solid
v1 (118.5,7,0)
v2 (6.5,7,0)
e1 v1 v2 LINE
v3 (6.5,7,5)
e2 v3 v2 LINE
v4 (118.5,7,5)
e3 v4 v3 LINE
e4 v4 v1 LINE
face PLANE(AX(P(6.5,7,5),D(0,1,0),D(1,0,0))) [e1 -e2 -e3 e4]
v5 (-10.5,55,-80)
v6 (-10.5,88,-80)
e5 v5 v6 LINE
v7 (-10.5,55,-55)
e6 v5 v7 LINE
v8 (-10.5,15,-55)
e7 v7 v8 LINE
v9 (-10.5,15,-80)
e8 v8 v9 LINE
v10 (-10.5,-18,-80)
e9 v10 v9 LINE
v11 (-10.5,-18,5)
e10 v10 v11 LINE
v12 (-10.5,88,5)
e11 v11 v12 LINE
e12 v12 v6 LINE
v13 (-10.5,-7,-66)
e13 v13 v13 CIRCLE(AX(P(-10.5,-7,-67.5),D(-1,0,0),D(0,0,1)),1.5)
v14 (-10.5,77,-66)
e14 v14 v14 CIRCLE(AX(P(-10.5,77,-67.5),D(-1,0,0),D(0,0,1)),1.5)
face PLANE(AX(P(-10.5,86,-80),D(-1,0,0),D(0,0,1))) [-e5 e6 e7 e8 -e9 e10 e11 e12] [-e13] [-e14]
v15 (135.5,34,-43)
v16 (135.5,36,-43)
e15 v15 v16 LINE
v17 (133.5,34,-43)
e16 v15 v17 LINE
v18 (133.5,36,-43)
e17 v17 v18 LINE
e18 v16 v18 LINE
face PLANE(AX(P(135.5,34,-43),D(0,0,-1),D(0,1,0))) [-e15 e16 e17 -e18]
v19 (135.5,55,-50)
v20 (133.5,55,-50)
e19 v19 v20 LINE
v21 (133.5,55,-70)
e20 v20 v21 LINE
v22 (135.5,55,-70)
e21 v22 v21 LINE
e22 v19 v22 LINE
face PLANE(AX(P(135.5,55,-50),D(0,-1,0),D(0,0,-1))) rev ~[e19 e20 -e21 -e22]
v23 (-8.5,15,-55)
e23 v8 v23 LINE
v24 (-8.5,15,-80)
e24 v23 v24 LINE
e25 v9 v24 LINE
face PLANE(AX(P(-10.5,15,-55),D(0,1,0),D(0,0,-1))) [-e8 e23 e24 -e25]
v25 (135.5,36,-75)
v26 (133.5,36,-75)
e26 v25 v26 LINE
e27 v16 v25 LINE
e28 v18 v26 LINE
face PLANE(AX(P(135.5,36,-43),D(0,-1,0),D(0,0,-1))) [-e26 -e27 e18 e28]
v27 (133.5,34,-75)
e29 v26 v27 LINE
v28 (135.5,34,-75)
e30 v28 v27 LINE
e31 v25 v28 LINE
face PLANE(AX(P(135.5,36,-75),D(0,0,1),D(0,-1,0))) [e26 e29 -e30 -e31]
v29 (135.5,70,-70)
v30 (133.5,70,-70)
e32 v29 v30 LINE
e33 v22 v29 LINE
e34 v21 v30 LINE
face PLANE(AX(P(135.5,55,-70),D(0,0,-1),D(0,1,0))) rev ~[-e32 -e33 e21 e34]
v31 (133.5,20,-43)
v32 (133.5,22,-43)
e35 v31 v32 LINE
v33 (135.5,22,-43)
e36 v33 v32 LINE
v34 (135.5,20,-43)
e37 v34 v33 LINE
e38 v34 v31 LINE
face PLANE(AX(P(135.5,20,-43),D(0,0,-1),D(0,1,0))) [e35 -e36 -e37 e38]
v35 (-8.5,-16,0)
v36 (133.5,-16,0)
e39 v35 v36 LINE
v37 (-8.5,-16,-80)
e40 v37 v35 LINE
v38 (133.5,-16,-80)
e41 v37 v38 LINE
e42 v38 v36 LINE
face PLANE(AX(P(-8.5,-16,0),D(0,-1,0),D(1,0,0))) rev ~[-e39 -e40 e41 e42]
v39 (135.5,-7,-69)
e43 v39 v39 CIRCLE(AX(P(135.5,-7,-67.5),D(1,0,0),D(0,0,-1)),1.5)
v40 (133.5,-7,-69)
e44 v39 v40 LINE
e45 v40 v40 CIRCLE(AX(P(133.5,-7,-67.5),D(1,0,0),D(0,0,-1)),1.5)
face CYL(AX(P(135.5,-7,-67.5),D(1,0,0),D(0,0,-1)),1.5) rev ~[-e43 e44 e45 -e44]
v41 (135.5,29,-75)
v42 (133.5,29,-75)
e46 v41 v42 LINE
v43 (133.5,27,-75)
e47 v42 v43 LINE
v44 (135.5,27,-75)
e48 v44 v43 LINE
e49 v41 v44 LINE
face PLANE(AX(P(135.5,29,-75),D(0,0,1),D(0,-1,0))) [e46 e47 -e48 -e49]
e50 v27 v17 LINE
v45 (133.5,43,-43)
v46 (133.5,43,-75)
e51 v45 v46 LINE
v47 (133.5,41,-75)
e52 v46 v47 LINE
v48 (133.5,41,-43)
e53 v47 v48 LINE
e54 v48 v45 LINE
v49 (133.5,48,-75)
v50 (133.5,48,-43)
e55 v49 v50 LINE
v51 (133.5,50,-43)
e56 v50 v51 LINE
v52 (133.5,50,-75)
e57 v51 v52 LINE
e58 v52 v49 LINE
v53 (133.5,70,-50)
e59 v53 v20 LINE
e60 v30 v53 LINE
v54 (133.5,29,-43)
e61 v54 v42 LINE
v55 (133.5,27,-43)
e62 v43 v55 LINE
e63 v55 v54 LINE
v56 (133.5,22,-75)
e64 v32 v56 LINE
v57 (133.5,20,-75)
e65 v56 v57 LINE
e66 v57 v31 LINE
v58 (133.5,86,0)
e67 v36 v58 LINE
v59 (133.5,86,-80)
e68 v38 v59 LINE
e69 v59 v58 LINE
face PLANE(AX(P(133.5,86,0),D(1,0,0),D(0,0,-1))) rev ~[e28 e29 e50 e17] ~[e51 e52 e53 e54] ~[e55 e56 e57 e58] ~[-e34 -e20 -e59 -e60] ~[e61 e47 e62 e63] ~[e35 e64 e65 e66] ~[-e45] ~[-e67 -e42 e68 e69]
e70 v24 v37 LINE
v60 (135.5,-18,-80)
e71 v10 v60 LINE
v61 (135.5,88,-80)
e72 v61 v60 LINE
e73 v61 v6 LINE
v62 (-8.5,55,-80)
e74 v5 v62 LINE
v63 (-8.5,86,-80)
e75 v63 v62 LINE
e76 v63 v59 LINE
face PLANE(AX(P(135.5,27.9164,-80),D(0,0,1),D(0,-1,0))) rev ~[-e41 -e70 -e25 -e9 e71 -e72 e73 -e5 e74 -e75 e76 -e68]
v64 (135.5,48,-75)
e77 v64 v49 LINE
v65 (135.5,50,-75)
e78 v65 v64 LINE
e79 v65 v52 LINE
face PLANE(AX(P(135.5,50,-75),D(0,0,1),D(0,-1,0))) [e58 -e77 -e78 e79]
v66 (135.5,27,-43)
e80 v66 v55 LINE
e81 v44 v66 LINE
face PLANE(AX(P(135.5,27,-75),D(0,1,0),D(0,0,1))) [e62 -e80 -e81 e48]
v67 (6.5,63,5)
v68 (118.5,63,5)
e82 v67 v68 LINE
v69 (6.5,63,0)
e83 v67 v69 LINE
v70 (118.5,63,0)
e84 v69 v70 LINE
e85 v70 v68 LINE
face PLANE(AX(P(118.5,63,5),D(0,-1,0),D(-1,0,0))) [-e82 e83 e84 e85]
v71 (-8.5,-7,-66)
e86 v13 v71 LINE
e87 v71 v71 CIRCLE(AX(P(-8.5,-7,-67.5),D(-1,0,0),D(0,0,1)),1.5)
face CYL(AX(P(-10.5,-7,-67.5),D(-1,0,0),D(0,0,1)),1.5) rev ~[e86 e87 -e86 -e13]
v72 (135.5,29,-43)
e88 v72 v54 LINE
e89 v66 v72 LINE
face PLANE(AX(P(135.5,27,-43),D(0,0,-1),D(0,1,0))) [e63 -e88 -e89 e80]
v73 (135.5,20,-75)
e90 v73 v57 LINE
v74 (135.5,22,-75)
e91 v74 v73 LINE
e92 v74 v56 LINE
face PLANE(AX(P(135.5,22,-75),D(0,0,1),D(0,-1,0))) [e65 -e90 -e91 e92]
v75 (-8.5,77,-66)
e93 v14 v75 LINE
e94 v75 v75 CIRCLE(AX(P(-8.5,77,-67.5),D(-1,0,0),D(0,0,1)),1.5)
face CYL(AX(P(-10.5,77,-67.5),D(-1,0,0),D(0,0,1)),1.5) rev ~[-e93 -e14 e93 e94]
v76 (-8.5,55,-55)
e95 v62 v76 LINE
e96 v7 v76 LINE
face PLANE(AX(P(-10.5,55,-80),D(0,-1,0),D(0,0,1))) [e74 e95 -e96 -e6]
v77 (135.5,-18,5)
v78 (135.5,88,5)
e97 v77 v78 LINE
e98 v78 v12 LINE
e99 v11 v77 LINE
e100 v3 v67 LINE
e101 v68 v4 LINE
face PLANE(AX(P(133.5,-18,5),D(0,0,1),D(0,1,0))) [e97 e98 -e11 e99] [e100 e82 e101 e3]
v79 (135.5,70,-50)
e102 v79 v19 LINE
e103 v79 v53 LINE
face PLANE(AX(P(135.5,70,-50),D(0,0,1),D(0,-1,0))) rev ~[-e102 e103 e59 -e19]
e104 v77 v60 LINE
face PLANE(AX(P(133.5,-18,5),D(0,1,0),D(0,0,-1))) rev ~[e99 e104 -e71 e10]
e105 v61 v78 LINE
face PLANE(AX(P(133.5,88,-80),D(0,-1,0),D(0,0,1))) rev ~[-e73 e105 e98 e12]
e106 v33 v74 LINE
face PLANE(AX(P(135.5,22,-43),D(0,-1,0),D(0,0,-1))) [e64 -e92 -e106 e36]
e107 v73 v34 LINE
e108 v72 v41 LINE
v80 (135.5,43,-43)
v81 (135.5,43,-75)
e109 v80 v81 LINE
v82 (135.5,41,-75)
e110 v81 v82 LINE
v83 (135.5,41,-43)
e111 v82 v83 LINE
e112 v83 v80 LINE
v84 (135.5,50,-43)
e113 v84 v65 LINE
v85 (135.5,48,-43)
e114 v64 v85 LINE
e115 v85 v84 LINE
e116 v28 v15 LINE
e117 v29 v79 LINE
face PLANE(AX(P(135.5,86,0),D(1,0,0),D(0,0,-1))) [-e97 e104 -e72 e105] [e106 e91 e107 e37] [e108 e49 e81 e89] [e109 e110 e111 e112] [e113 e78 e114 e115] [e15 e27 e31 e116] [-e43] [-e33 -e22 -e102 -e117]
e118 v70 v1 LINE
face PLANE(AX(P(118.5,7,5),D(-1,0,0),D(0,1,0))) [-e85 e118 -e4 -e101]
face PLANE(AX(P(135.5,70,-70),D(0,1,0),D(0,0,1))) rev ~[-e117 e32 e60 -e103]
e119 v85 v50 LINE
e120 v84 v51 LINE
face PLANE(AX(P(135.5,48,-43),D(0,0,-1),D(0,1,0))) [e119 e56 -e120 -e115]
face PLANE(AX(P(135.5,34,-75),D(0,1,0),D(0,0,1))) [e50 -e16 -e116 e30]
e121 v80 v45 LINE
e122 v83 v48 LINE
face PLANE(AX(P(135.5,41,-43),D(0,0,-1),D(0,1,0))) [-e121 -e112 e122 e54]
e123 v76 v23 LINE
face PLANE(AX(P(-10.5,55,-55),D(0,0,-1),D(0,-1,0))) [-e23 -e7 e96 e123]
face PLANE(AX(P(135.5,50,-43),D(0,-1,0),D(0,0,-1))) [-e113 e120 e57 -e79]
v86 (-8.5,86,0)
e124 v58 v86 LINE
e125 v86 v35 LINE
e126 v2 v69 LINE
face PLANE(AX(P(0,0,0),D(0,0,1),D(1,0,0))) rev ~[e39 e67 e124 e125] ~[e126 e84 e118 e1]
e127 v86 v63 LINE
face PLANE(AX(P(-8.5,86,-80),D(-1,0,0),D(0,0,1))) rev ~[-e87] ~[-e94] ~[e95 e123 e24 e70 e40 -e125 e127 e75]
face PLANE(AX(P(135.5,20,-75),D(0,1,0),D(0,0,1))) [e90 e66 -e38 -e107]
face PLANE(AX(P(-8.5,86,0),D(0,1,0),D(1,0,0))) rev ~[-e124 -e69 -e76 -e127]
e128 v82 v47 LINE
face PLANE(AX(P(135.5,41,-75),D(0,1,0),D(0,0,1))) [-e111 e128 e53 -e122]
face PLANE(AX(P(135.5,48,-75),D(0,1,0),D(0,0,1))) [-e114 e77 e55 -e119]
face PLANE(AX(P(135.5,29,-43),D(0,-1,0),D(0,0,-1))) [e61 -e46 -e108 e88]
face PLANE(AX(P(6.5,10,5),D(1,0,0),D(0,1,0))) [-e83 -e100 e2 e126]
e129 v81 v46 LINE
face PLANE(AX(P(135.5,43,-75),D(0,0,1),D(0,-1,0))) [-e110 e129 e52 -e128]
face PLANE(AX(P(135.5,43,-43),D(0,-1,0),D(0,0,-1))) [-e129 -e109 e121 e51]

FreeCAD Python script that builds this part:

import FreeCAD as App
import Part
import Sketcher
from FreeCAD import Vector


def edges_at(feature, points):
    """Names of the edges that pass closest to the given points."""
    edges = feature.Shape.Edges
    near = lambda p: min(range(len(edges)), key=lambda i: edges[i].distToShape(Part.Vertex(*p))[0])
    return sorted({f"Edge{near(p) + 1}" for p in points})

doc = App.newDocument("Part")
body = doc.addObject("PartDesign::Body", "Body")

# Sketch on XY plane
sketch1 = doc.addObject("Sketcher::SketchObject", "Sketch")
body.addObject(sketch1)
sketch1.AttachmentSupport = (doc.XY_Plane, [""])
sketch1.MapMode = "FlatFace"
sketch1.addGeometry([
    Part.LineSegment(Vector(-8.5, 86, 0), Vector(-8.5, -16, 0)),  # 0
    Part.LineSegment(Vector(-8.5, -16, 0), Vector(133.5, -16, 0)),  # 1
    Part.LineSegment(Vector(133.5, -16, 0), Vector(133.5, 86, 0)),  # 2
    Part.LineSegment(Vector(133.5, 86, 0), Vector(-8.5, 86, 0)),  # 3
    Part.Circle(Vector(0, 0, 0), Vector(0, 0, 1), 2.5),  # 4
    Part.Circle(Vector(125, 0, 0), Vector(0, 0, 1), 2.5),  # 5
    Part.Circle(Vector(0, 70, 0), Vector(0, 0, 1), 2.5),  # 6
    Part.Circle(Vector(125, 70, 0), Vector(0, 0, 1), 2.5),  # 7
], False)
sketch1.addConstraint([
    Sketcher.Constraint("Coincident", 0, 2, 1, 1),
    Sketcher.Constraint("Coincident", 1, 2, 2, 1),
    Sketcher.Constraint("Coincident", 2, 2, 3, 1),
    Sketcher.Constraint("Coincident", 3, 2, 0, 1),
    Sketcher.Constraint("Vertical", 0),
    Sketcher.Constraint("Horizontal", 1),
    Sketcher.Constraint("Vertical", 2),
    Sketcher.Constraint("Horizontal", 3),
    Sketcher.Constraint("Coincident", 4, 3, -1, 1),
    Sketcher.Constraint("Equal", 4, 5),
    Sketcher.Constraint("Equal", 5, 6),
    Sketcher.Constraint("Equal", 6, 7),
    Sketcher.Constraint("PointOnObject", 5, 3, -1),
    Sketcher.Constraint("PointOnObject", 6, 3, -2),
    Sketcher.Constraint("Horizontal", 6, 3, 7, 3),
    Sketcher.Constraint("Vertical", 5, 3, 7, 3),
    Sketcher.Constraint("Diameter", 4, 5.0),
    Sketcher.Constraint("DistanceX", 1, 1, 1, 2, 142.0),
    Sketcher.Constraint("DistanceY", 0, 2, 0, 1, 102.0),
    Sketcher.Constraint("DistanceX", -1, 1, 5, 3, 125.0),
    Sketcher.Constraint("DistanceY", -1, 1, 6, 3, 70.0),
    Sketcher.Constraint("DistanceY", 0, 2, -1, 1, 16.0),
    Sketcher.Constraint("DistanceX", 0, 2, -1, 1, 8.5),
])
pad1 = doc.addObject("PartDesign::Pad", "Pad")
body.addObject(pad1)
pad1.Profile = sketch1
pad1.Length = 5

# Sketch on XY plane
sketch2 = doc.addObject("Sketcher::SketchObject", "Sketch001")
body.addObject(sketch2)
sketch2.AttachmentSupport = (doc.XY_Plane, [""])
sketch2.MapMode = "FlatFace"
sketch2.AttachmentOffset = App.Placement(Vector(0, 0, 5), App.Rotation())
sketch2.addGeometry([
    Part.LineSegment(Vector(118, 60, 0), Vector(6, 60, 0)),
    Part.LineSegment(Vector(6, 60, 0), Vector(6, 10, 0)),
    Part.LineSegment(Vector(6, 10, 0), Vector(118, 10, 0)),
    Part.LineSegment(Vector(118, 10, 0), Vector(118, 60, 0)),
], False)
sketch2.addConstraint([
    Sketcher.Constraint("Coincident", 0, 2, 1, 1),
    Sketcher.Constraint("Coincident", 1, 2, 2, 1),
    Sketcher.Constraint("Coincident", 2, 2, 3, 1),
    Sketcher.Constraint("Coincident", 3, 2, 0, 1),
    Sketcher.Constraint("Horizontal", 0),
    Sketcher.Constraint("Vertical", 1),
    Sketcher.Constraint("Horizontal", 2),
    Sketcher.Constraint("Vertical", 3),
    Sketcher.Constraint("DistanceY", 1, 2, 1, 1, 50.0),
    Sketcher.Constraint("DistanceX", 0, 2, 0, 1, 112.0),
    Sketcher.Constraint("DistanceY", -1, 1, 0, 2, 60.0),
    Sketcher.Constraint("DistanceX", -1, 1, 0, 2, 6.5),
])
pocket1 = doc.addObject("PartDesign::Pocket", "Pocket")
body.addObject(pocket1)
pocket1.Profile = sketch2
pocket1.Type = "ThroughAll"

# Sketch on XZ plane
sketch3 = doc.addObject("Sketcher::SketchObject", "Sketch002")
body.addObject(sketch3)
sketch3.AttachmentSupport = (doc.XZ_Plane, [""])
sketch3.MapMode = "FlatFace"
sketch3.AttachmentOffset = App.Placement(Vector(0, 0, -86), App.Rotation())
sketch3.addGeometry([
    Part.LineSegment(Vector(134, 5, 0), Vector(134, -80, 0)),
    Part.LineSegment(Vector(134, -80, 0), Vector(-8, -80, 0)),
    Part.LineSegment(Vector(-8, -80, 0), Vector(-8, 5, 0)),
    Part.LineSegment(Vector(-8, 5, 0), Vector(134, 5, 0)),
], False)
sketch3.addConstraint([
    Sketcher.Constraint("Coincident", 0, 2, 1, 1),
    Sketcher.Constraint("Coincident", 1, 2, 2, 1),
    Sketcher.Constraint("Coincident", 2, 2, 3, 1),
    Sketcher.Constraint("Coincident", 3, 2, 0, 1),
    Sketcher.Constraint("Vertical", 0),
    Sketcher.Constraint("Horizontal", 1),
    Sketcher.Constraint("Vertical", 2),
    Sketcher.Constraint("Horizontal", 3),
    Sketcher.Constraint("DistanceY", 0, 2, 0, 1, 85.0),
    Sketcher.Constraint("DistanceX", 1, 2, 1, 1, 142.0),
    Sketcher.Constraint("DistanceY", 0, 2, -1, 1, 80.0),
    Sketcher.Constraint("DistanceX", -1, 1, 0, 2, 133.5),
])
pad2 = doc.addObject("PartDesign::Pad", "Pad001")
body.addObject(pad2)
pad2.Profile = sketch3
pad2.Length = 2
pad2.Reversed = True

# Sketch on XZ plane
sketch4 = doc.addObject("Sketcher::SketchObject", "Sketch003")
body.addObject(sketch4)
sketch4.AttachmentSupport = (doc.XZ_Plane, [""])
sketch4.MapMode = "FlatFace"
sketch4.AttachmentOffset = App.Placement(Vector(0, 0, 16), App.Rotation())
sketch4.addGeometry([
    Part.LineSegment(Vector(134, -80, 0), Vector(134, 5, 0)),
    Part.LineSegment(Vector(134, 5, 0), Vector(-8, 5, 0)),
    Part.LineSegment(Vector(-8, 5, 0), Vector(-8, -80, 0)),
    Part.LineSegment(Vector(-8, -80, 0), Vector(134, -80, 0)),
], False)
sketch4.addConstraint([
    Sketcher.Constraint("Coincident", 0, 2, 1, 1),
    Sketcher.Constraint("Coincident", 1, 2, 2, 1),
    Sketcher.Constraint("Coincident", 2, 2, 3, 1),
    Sketcher.Constraint("Coincident", 3, 2, 0, 1),
    Sketcher.Constraint("Vertical", 0),
    Sketcher.Constraint("Horizontal", 1),
    Sketcher.Constraint("Vertical", 2),
    Sketcher.Constraint("Horizontal", 3),
    Sketcher.Constraint("DistanceX", 1, 2, 1, 1, 142.0),
    Sketcher.Constraint("DistanceY", 0, 1, 0, 2, 85.0),
    Sketcher.Constraint("DistanceY", -1, 1, 0, 2, 5.0),
    Sketcher.Constraint("DistanceX", -1, 1, 0, 2, 133.5),
])
pad3 = doc.addObject("PartDesign::Pad", "Pad002")
body.addObject(pad3)
pad3.Profile = sketch4
pad3.Length = 2

# Sketch on YZ plane
sketch5 = doc.addObject("Sketcher::SketchObject", "Sketch004")
body.addObject(sketch5)
sketch5.AttachmentSupport = (doc.YZ_Plane, [""])
sketch5.MapMode = "FlatFace"
sketch5.AttachmentOffset = App.Placement(Vector(0, 0, -8.5), App.Rotation())
sketch5.addGeometry([
    Part.LineSegment(Vector(-18, -80, 0), Vector(-18, 5, 0)),
    Part.LineSegment(Vector(-18, 5, 0), Vector(88, 5, 0)),
    Part.LineSegment(Vector(88, 5, 0), Vector(88, -80, 0)),
    Part.LineSegment(Vector(88, -80, 0), Vector(-18, -80, 0)),
], False)
sketch5.addConstraint([
    Sketcher.Constraint("Coincident", 0, 2, 1, 1),
    Sketcher.Constraint("Coincident", 1, 2, 2, 1),
    Sketcher.Constraint("Coincident", 2, 2, 3, 1),
    Sketcher.Constraint("Coincident", 3, 2, 0, 1),
    Sketcher.Constraint("Vertical", 0),
    Sketcher.Constraint("Horizontal", 1),
    Sketcher.Constraint("Vertical", 2),
    Sketcher.Constraint("Horizontal", 3),
    Sketcher.Constraint("DistanceX", 1, 1, 1, 2, 106.0),
    Sketcher.Constraint("DistanceY", 0, 1, 0, 2, 85.0),
    Sketcher.Constraint("DistanceX", 0, 2, -1, 1, 18.0),
    Sketcher.Constraint("DistanceY", -1, 1, 0, 2, 5.0),
])
pad4 = doc.addObject("PartDesign::Pad", "Pad003")
body.addObject(pad4)
pad4.Profile = sketch5
pad4.Length = 2
pad4.Reversed = True

# Sketch on YZ plane
sketch6 = doc.addObject("Sketcher::SketchObject", "Sketch005")
body.addObject(sketch6)
sketch6.AttachmentSupport = (doc.YZ_Plane, [""])
sketch6.MapMode = "FlatFace"
sketch6.AttachmentOffset = App.Placement(Vector(0, 0, 133.5), App.Rotation())
sketch6.addGeometry([
    Part.LineSegment(Vector(88, 5, 0), Vector(-18, 5, 0)),
    Part.LineSegment(Vector(-18, 5, 0), Vector(-18, -80, 0)),
    Part.LineSegment(Vector(-18, -80, 0), Vector(88, -80, 0)),
    Part.LineSegment(Vector(88, -80, 0), Vector(88, 5, 0)),
], False)
sketch6.addConstraint([
    Sketcher.Constraint("Coincident", 0, 2, 1, 1),
    Sketcher.Constraint("Coincident", 1, 2, 2, 1),
    Sketcher.Constraint("Coincident", 2, 2, 3, 1),
    Sketcher.Constraint("Coincident", 3, 2, 0, 1),
    Sketcher.Constraint("Horizontal", 0),
    Sketcher.Constraint("Vertical", 1),
    Sketcher.Constraint("Horizontal", 2),
    Sketcher.Constraint("Vertical", 3),
    Sketcher.Constraint("DistanceX", 0, 2, 0, 1, 106.0),
    Sketcher.Constraint("DistanceY", 1, 2, 1, 1, 85.0),
    Sketcher.Constraint("DistanceX", 0, 2, -1, 1, 18.0),
    Sketcher.Constraint("DistanceY", -1, 1, 0, 2, 5.0),
])
pad5 = doc.addObject("PartDesign::Pad", "Pad004")
body.addObject(pad5)
pad5.Profile = sketch6
pad5.Length = 2

# Sketch on XY plane
sketch7 = doc.addObject("Sketcher::SketchObject", "Sketch006")
body.addObject(sketch7)
sketch7.AttachmentSupport = (doc.XY_Plane, [""])
sketch7.MapMode = "FlatFace"
sketch7.AttachmentOffset = App.Placement(Vector(0, 0, 5), App.Rotation())
sketch7.addGeometry([
    Part.LineSegment(Vector(64, 20, 0), Vector(64, 10, 0)),  # 0
    Part.LineSegment(Vector(64, 10, 0), Vector(118, 10, 0)),  # 1
    Part.LineSegment(Vector(118, 10, 0), Vector(118, 20, 0)),  # 2
    Part.LineSegment(Vector(118, 20, 0), Vector(64, 20, 0)),  # 3
    Part.LineSegment(Vector(62, 60, 0), Vector(6, 60, 0)),  # 4
    Part.LineSegment(Vector(6, 60, 0), Vector(6, 50, 0)),  # 5
    Part.LineSegment(Vector(6, 50, 0), Vector(62, 50, 0)),  # 6
    Part.LineSegment(Vector(62, 50, 0), Vector(62, 60, 0)),  # 7
], False)
sketch7.addConstraint([
    Sketcher.Constraint("Coincident", 0, 2, 1, 1),
    Sketcher.Constraint("Coincident", 1, 2, 2, 1),
    Sketcher.Constraint("Coincident", 2, 2, 3, 1),
    Sketcher.Constraint("Coincident", 3, 2, 0, 1),
    Sketcher.Constraint("Coincident", 4, 2, 5, 1),
    Sketcher.Constraint("Coincident", 5, 2, 6, 1),
    Sketcher.Constraint("Coincident", 6, 2, 7, 1),
    Sketcher.Constraint("Coincident", 7, 2, 4, 1),
    Sketcher.Constraint("Vertical", 0),
    Sketcher.Constraint("Horizontal", 1),
    Sketcher.Constraint("Vertical", 2),
    Sketcher.Constraint("Horizontal", 3),
    Sketcher.Constraint("Horizontal", 4),
    Sketcher.Constraint("Vertical", 5),
    Sketcher.Constraint("Horizontal", 6),
    Sketcher.Constraint("Vertical", 7),
    Sketcher.Constraint("Equal", 3, 4),
    Sketcher.Constraint("Equal", 2, 5),
    Sketcher.Constraint("DistanceX", 1, 1, 1, 2, 55.0),
    Sketcher.Constraint("DistanceY", 0, 2, 0, 1, 10.0),
    Sketcher.Constraint("DistanceY", -1, 1, 0, 2, 10.0),
    Sketcher.Constraint("DistanceY", -1, 1, 4, 2, 60.0),
    Sketcher.Constraint("DistanceX", 4, 2, 3, 2, 57.0),
    Sketcher.Constraint("DistanceX", -1, 1, 0, 2, 63.5),
])
pad6 = doc.addObject("PartDesign::Pad", "Pad005")
body.addObject(pad6)
pad6.Profile = sketch7
pad6.Length = 5
pad6.Reversed = True
doc.recompute()

chamfer = doc.addObject("PartDesign::Chamfer", "Chamfer")
body.addObject(chamfer)
chamfer.Base = (pad6, edges_at(pad6, [
    (35, 10, 0),
    (90, 60, 0),
    (91, 20, 5),
    (34, 50, 5),
]))
chamfer.Size = 3

# Sketch on YZ plane
sketch8 = doc.addObject("Sketcher::SketchObject", "Sketch007")
body.addObject(sketch8)
sketch8.AttachmentSupport = (doc.YZ_Plane, [""])
sketch8.MapMode = "FlatFace"
sketch8.AttachmentOffset = App.Placement(Vector(0, 0, 135.5), App.Rotation())
sketch8.addGeometry([
    Part.LineSegment(Vector(8, -55, 0), Vector(8, -80, 0)),
    Part.LineSegment(Vector(8, -80, 0), Vector(28, -80, 0)),
    Part.LineSegment(Vector(28, -80, 0), Vector(28, -55, 0)),
    Part.LineSegment(Vector(28, -55, 0), Vector(8, -55, 0)),
], False)
sketch8.addConstraint([
    Sketcher.Constraint("Coincident", 0, 2, 1, 1),
    Sketcher.Constraint("Coincident", 1, 2, 2, 1),
    Sketcher.Constraint("Coincident", 2, 2, 3, 1),
    Sketcher.Constraint("Coincident", 3, 2, 0, 1),
    Sketcher.Constraint("Vertical", 0),
    Sketcher.Constraint("Horizontal", 1),
    Sketcher.Constraint("Vertical", 2),
    Sketcher.Constraint("Horizontal", 3),
    Sketcher.Constraint("DistanceX", 1, 1, 1, 2, 20.0),
    Sketcher.Constraint("DistanceY", 0, 2, 0, 1, 25.0),
    Sketcher.Constraint("DistanceY", 0, 2, -1, 1, 80.0),
    Sketcher.Constraint("DistanceX", -1, 1, 0, 2, 7.9164),
])
pocket2 = doc.addObject("PartDesign::Pocket", "Pocket001")
body.addObject(pocket2)
pocket2.Profile = sketch8
pocket2.Length = 10

# Sketch on YZ plane
sketch9 = doc.addObject("Sketcher::SketchObject", "Sketch008")
body.addObject(sketch9)
sketch9.AttachmentSupport = (doc.YZ_Plane, [""])
sketch9.MapMode = "FlatFace"
sketch9.AttachmentOffset = App.Placement(Vector(0, 0, -10.5), App.Rotation())
sketch9.addGeometry([
    Part.LineSegment(Vector(55, -80, 0), Vector(15, -80, 0)),
    Part.LineSegment(Vector(15, -80, 0), Vector(15, -55, 0)),
    Part.LineSegment(Vector(15, -55, 0), Vector(55, -55, 0)),
    Part.LineSegment(Vector(55, -55, 0), Vector(55, -80, 0)),
], False)
sketch9.addConstraint([
    Sketcher.Constraint("Coincident", 0, 2, 1, 1),
    Sketcher.Constraint("Coincident", 1, 2, 2, 1),
    Sketcher.Constraint("Coincident", 2, 2, 3, 1),
    Sketcher.Constraint("Coincident", 3, 2, 0, 1),
    Sketcher.Constraint("Horizontal", 0),
    Sketcher.Constraint("Vertical", 1),
    Sketcher.Constraint("Horizontal", 2),
    Sketcher.Constraint("Vertical", 3),
    Sketcher.Constraint("DistanceX", 0, 2, 0, 1, 40.0),
    Sketcher.Constraint("DistanceY", 1, 1, 1, 2, 25.0),
    Sketcher.Constraint("DistanceX", -1, 1, 0, 2, 15.0),
    Sketcher.Constraint("DistanceY", 0, 2, -1, 1, 80.0),
])
pocket3 = doc.addObject("PartDesign::Pocket", "Pocket002")
body.addObject(pocket3)
pocket3.Profile = sketch9
pocket3.Length = 10
pocket3.Reversed = True

# Sketch on YZ plane
sketch10 = doc.addObject("Sketcher::SketchObject", "Sketch009")
body.addObject(sketch10)
sketch10.AttachmentSupport = (doc.YZ_Plane, [""])
sketch10.MapMode = "FlatFace"
sketch10.AttachmentOffset = App.Placement(Vector(0, 0, -10.5), App.Rotation())
sketch10.addGeometry([
    Part.Circle(Vector(-7, -67.5, 0), Vector(0, 0, 1), 1.5),
    Part.Circle(Vector(77, -67.5, 0), Vector(0, 0, 1), 1.5),
], False)
sketch10.addConstraint([
    Sketcher.Constraint("Equal", 0, 1),
    Sketcher.Constraint("Horizontal", 0, 3, 1, 3),
    Sketcher.Constraint("Diameter", 0, 3.0),
    Sketcher.Constraint("DistanceX", 0, 3, 1, 3, 84.0),
    Sketcher.Constraint("DistanceX", 0, 3, -1, 1, 7.0),
    Sketcher.Constraint("DistanceY", 0, 3, -1, 1, 67.5),
])
pocket4 = doc.addObject("PartDesign::Pocket", "Pocket003")
body.addObject(pocket4)
pocket4.Profile = sketch10
pocket4.Length = 10
pocket4.Reversed = True

# Sketch on XY plane
sketch11 = doc.addObject("Sketcher::SketchObject", "Sketch010")
body.addObject(sketch11)
sketch11.AttachmentSupport = (doc.XY_Plane, [""])
sketch11.MapMode = "FlatFace"
sketch11.AttachmentOffset = App.Placement(Vector(0, 0, 5), App.Rotation())
sketch11.addGeometry([
    Part.Circle(Vector(0, 0, 0), Vector(0, 0, 1), 2.5),
    Part.Circle(Vector(0, 70, 0), Vector(0, 0, 1), 2.5),
    Part.Circle(Vector(125, 0, 0), Vector(0, 0, 1), 2.5),
    Part.Circle(Vector(125, 70, 0), Vector(0, 0, 1), 2.5),
], False)
sketch11.addConstraint([
    Sketcher.Constraint("Coincident", 0, 3, -1, 1),
    Sketcher.Constraint("Equal", 0, 1),
    Sketcher.Constraint("Equal", 1, 2),
    Sketcher.Constraint("Equal", 2, 3),
    Sketcher.Constraint("PointOnObject", 1, 3, -2),
    Sketcher.Constraint("PointOnObject", 2, 3, -1),
    Sketcher.Constraint("Horizontal", 1, 3, 3, 3),
    Sketcher.Constraint("Vertical", 2, 3, 3, 3),
    Sketcher.Constraint("Diameter", 0, 5.0),
    Sketcher.Constraint("DistanceY", -1, 1, 1, 3, 70.0),
    Sketcher.Constraint("DistanceX", -1, 1, 2, 3, 125.0),
])
pad7 = doc.addObject("PartDesign::Pad", "Pad006")
body.addObject(pad7)
pad7.Profile = sketch11
pad7.Length = 5
pad7.Reversed = True

# Sketch on XY plane
sketch12 = doc.addObject("Sketcher::SketchObject", "Sketch011")
body.addObject(sketch12)
sketch12.AttachmentSupport = (doc.XY_Plane, [""])
sketch12.MapMode = "FlatFace"
sketch12.AttachmentOffset = App.Placement(Vector(0, 0, 5), App.Rotation())
sketch12.addGeometry([
    Part.LineSegment(Vector(118, 7, 0), Vector(118, 63, 0)),
    Part.LineSegment(Vector(118, 63, 0), Vector(6, 63, 0)),
    Part.LineSegment(Vector(6, 63, 0), Vector(6, 7, 0)),
    Part.LineSegment(Vector(6, 7, 0), Vector(118, 7, 0)),
], False)
sketch12.addConstraint([
    Sketcher.Constraint("Coincident", 0, 2, 1, 1),
    Sketcher.Constraint("Coincident", 1, 2, 2, 1),
    Sketcher.Constraint("Coincident", 2, 2, 3, 1),
    Sketcher.Constraint("Coincident", 3, 2, 0, 1),
    Sketcher.Constraint("Vertical", 0),
    Sketcher.Constraint("Horizontal", 1),
    Sketcher.Constraint("Vertical", 2),
    Sketcher.Constraint("Horizontal", 3),
    Sketcher.Constraint("DistanceX", 1, 2, 1, 1, 112.0),
    Sketcher.Constraint("DistanceY", 0, 1, 0, 2, 56.0),
    Sketcher.Constraint("DistanceY", -1, 1, 0, 2, 63.0),
    Sketcher.Constraint("DistanceX", -1, 1, 0, 2, 118.5),
])
pocket5 = doc.addObject("PartDesign::Pocket", "Pocket004")
body.addObject(pocket5)
pocket5.Profile = sketch12
pocket5.Type = "ThroughAll"
pocket5.Midplane = True

# Sketch on YZ plane
sketch13 = doc.addObject("Sketcher::SketchObject", "Sketch012")
body.addObject(sketch13)
sketch13.AttachmentSupport = (doc.YZ_Plane, [""])
sketch13.MapMode = "FlatFace"
sketch13.AttachmentOffset = App.Placement(Vector(0, 0, 135.5), App.Rotation())
sketch13.addGeometry([
    Part.LineSegment(Vector(28, -80, 0), Vector(28, -55, 0)),
    Part.LineSegment(Vector(28, -55, 0), Vector(8, -55, 0)),
    Part.LineSegment(Vector(8, -55, 0), Vector(8, -80, 0)),
    Part.LineSegment(Vector(8, -80, 0), Vector(28, -80, 0)),
], False)
sketch13.addConstraint([
    Sketcher.Constraint("Coincident", 0, 2, 1, 1),
    Sketcher.Constraint("Coincident", 1, 2, 2, 1),
    Sketcher.Constraint("Coincident", 2, 2, 3, 1),
    Sketcher.Constraint("Coincident", 3, 2, 0, 1),
    Sketcher.Constraint("Vertical", 0),
    Sketcher.Constraint("Horizontal", 1),
    Sketcher.Constraint("Vertical", 2),
    Sketcher.Constraint("Horizontal", 3),
    Sketcher.Constraint("DistanceX", 1, 2, 1, 1, 20.0),
    Sketcher.Constraint("DistanceY", 0, 1, 0, 2, 25.0),
    Sketcher.Constraint("DistanceY", 0, 2, -1, 1, 55.0),
    Sketcher.Constraint("DistanceX", -1, 1, 0, 2, 27.9164),
])
pad8 = doc.addObject("PartDesign::Pad", "Pad007")
body.addObject(pad8)
pad8.Profile = sketch13
pad8.Length = 2
pad8.Reversed = True

# Sketch on YZ plane
sketch14 = doc.addObject("Sketcher::SketchObject", "Sketch013")
body.addObject(sketch14)
sketch14.AttachmentSupport = (doc.YZ_Plane, [""])
sketch14.MapMode = "FlatFace"
sketch14.AttachmentOffset = App.Placement(Vector(0, 0, 135.5), App.Rotation())
sketch14.addGeometry([
    Part.LineSegment(Vector(70, -50, 0), Vector(55, -50, 0)),
    Part.LineSegment(Vector(55, -50, 0), Vector(55, -70, 0)),
    Part.LineSegment(Vector(55, -70, 0), Vector(70, -70, 0)),
    Part.LineSegment(Vector(70, -70, 0), Vector(70, -50, 0)),
], False)
sketch14.addConstraint([
    Sketcher.Constraint("Coincident", 0, 2, 1, 1),
    Sketcher.Constraint("Coincident", 1, 2, 2, 1),
    Sketcher.Constraint("Coincident", 2, 2, 3, 1),
    Sketcher.Constraint("Coincident", 3, 2, 0, 1),
    Sketcher.Constraint("Horizontal", 0),
    Sketcher.Constraint("Vertical", 1),
    Sketcher.Constraint("Horizontal", 2),
    Sketcher.Constraint("Vertical", 3),
    Sketcher.Constraint("DistanceX", 0, 2, 0, 1, 15.0),
    Sketcher.Constraint("DistanceY", 1, 2, 1, 1, 20.0),
    Sketcher.Constraint("DistanceX", -1, 1, 0, 2, 55.0),
    Sketcher.Constraint("DistanceY", 0, 2, -1, 1, 50.0),
])
pocket6 = doc.addObject("PartDesign::Pocket", "Pocket005")
body.addObject(pocket6)
pocket6.Profile = sketch14
pocket6.Length = 10

# Sketch on YZ plane
sketch15 = doc.addObject("Sketcher::SketchObject", "Sketch014")
body.addObject(sketch15)
sketch15.AttachmentSupport = (doc.YZ_Plane, [""])
sketch15.MapMode = "FlatFace"
sketch15.AttachmentOffset = App.Placement(Vector(0, 0, 135.5), App.Rotation())
sketch15.addGeometry([
    Part.LineSegment(Vector(50, -75, 0), Vector(50, -43, 0)),  # 0
    Part.LineSegment(Vector(50, -43, 0), Vector(48, -43, 0)),  # 1
    Part.LineSegment(Vector(48, -43, 0), Vector(48, -75, 0)),  # 2
    Part.LineSegment(Vector(48, -75, 0), Vector(50, -75, 0)),  # 3
    Part.LineSegment(Vector(20, -43, 0), Vector(20, -75, 0)),  # 4
    Part.LineSegment(Vector(20, -75, 0), Vector(22, -75, 0)),  # 5
    Part.LineSegment(Vector(22, -75, 0), Vector(22, -43, 0)),  # 6
    Part.LineSegment(Vector(22, -43, 0), Vector(20, -43, 0)),  # 7
    Part.LineSegment(Vector(41, -43, 0), Vector(41, -75, 0)),  # 8
    Part.LineSegment(Vector(41, -75, 0), Vector(43, -75, 0)),  # 9
    Part.LineSegment(Vector(43, -75, 0), Vector(43, -43, 0)),  # 10
    Part.LineSegment(Vector(43, -43, 0), Vector(41, -43, 0)),  # 11
    Part.LineSegment(Vector(34, -43, 0), Vector(34, -75, 0)),  # 12
    Part.LineSegment(Vector(34, -75, 0), Vector(36, -75, 0)),  # 13
    Part.LineSegment(Vector(36, -75, 0), Vector(36, -43, 0)),  # 14
    Part.LineSegment(Vector(36, -43, 0), Vector(34, -43, 0)),  # 15
    Part.LineSegment(Vector(27, -43, 0), Vector(27, -75, 0)),  # 16
    Part.LineSegment(Vector(27, -75, 0), Vector(29, -75, 0)),  # 17
    Part.LineSegment(Vector(29, -75, 0), Vector(29, -43, 0)),  # 18
    Part.LineSegment(Vector(29, -43, 0), Vector(27, -43, 0)),  # 19
], False)
sketch15.addConstraint([
    Sketcher.Constraint("Coincident", 0, 2, 1, 1),
    Sketcher.Constraint("Coincident", 1, 2, 2, 1),
    Sketcher.Constraint("Coincident", 2, 2, 3, 1),
    Sketcher.Constraint("Coincident", 3, 2, 0, 1),
    Sketcher.Constraint("Coincident", 4, 2, 5, 1),
    Sketcher.Constraint("Coincident", 5, 2, 6, 1),
    Sketcher.Constraint("Coincident", 6, 2, 7, 1),
    Sketcher.Constraint("Coincident", 7, 2, 4, 1),
    Sketcher.Constraint("Coincident", 8, 2, 9, 1),
    Sketcher.Constraint("Coincident", 9, 2, 10, 1),
    Sketcher.Constraint("Coincident", 10, 2, 11, 1),
    Sketcher.Constraint("Coincident", 11, 2, 8, 1),
    Sketcher.Constraint("Coincident", 12, 2, 13, 1),
    Sketcher.Constraint("Coincident", 13, 2, 14, 1),
    Sketcher.Constraint("Coincident", 14, 2, 15, 1),
    Sketcher.Constraint("Coincident", 15, 2, 12, 1),
    Sketcher.Constraint("Coincident", 16, 2, 17, 1),
    Sketcher.Constraint("Coincident", 17, 2, 18, 1),
    Sketcher.Constraint("Coincident", 18, 2, 19, 1),
    Sketcher.Constraint("Coincident", 19, 2, 16, 1),
    Sketcher.Constraint("Vertical", 0),
    Sketcher.Constraint("Horizontal", 1),
    Sketcher.Constraint("Vertical", 2),
    Sketcher.Constraint("Horizontal", 3),
    Sketcher.Constraint("Vertical", 4),
    Sketcher.Constraint("Horizontal", 5),
    Sketcher.Constraint("Vertical", 6),
    Sketcher.Constraint("Horizontal", 7),
    Sketcher.Constraint("Vertical", 8),
    Sketcher.Constraint("Horizontal", 9),
    Sketcher.Constraint("Vertical", 10),
    Sketcher.Constraint("Horizontal", 11),
    Sketcher.Constraint("Vertical", 12),
    Sketcher.Constraint("Horizontal", 13),
    Sketcher.Constraint("Vertical", 14),
    Sketcher.Constraint("Horizontal", 15),
    Sketcher.Constraint("Vertical", 16),
    Sketcher.Constraint("Horizontal", 17),
    Sketcher.Constraint("Vertical", 18),
    Sketcher.Constraint("Horizontal", 19),
    Sketcher.Constraint("Horizontal", 3, 2, 4, 2),
    Sketcher.Constraint("Horizontal", 1, 2, 6, 2),
    Sketcher.Constraint("Horizontal", 5, 2, 8, 2),
    Sketcher.Constraint("Horizontal", 7, 2, 10, 2),
    Sketcher.Constraint("Horizontal", 9, 2, 12, 2),
    Sketcher.Constraint("Horizontal", 11, 2, 14, 2),
    Sketcher.Constraint("Horizontal", 13, 2, 16, 2),
    Sketcher.Constraint("Horizontal", 15, 2, 18, 2),
    Sketcher.Constraint("Equal", 3, 5),
    Sketcher.Constraint("Equal", 7, 9),
    Sketcher.Constraint("Equal", 11, 13),
    Sketcher.Constraint("Equal", 15, 17),
    Sketcher.Constraint("DistanceX", 1, 2, 1, 1, 2.0),
    Sketcher.Constraint("DistanceX", 8, 2, 2, 2, 7.0),
    Sketcher.Constraint("DistanceX", 12, 2, 8, 2, 7.0),
    Sketcher.Constraint("DistanceX", 5, 2, 16, 2, 5.0),
    Sketcher.Constraint("DistanceX", 16, 2, 12, 2, 7.0),
    Sketcher.Constraint("DistanceY", 0, 1, 0, 2, 32.0),
    Sketcher.Constraint("DistanceX", -1, 1, 0, 2, 50.0),
    Sketcher.Constraint("DistanceY", 0, 2, -1, 1, 43.0),
])
pocket7 = doc.addObject("PartDesign::Pocket", "Pocket006")
body.addObject(pocket7)
pocket7.Profile = sketch15
pocket7.Length = 10

# Sketch on YZ plane
sketch16 = doc.addObject("Sketcher::SketchObject", "Sketch015")
body.addObject(sketch16)
sketch16.AttachmentSupport = (doc.YZ_Plane, [""])
sketch16.MapMode = "FlatFace"
sketch16.AttachmentOffset = App.Placement(Vector(0, 0, 135.5), App.Rotation())
sketch16.addGeometry(Part.Circle(Vector(-7, -67.5, 0), Vector(0, 0, 1), 1.5), False)
sketch16.addConstraint([
    Sketcher.Constraint("Diameter", 0, 3.0),
    Sketcher.Constraint("DistanceX", 0, 3, -1, 1, 7.0),
    Sketcher.Constraint("DistanceY", 0, 3, -1, 1, 67.5),
])
pocket8 = doc.addObject("PartDesign::Pocket", "Pocket007")
body.addObject(pocket8)
pocket8.Profile = sketch16
pocket8.Length = 10

doc.recompute()
